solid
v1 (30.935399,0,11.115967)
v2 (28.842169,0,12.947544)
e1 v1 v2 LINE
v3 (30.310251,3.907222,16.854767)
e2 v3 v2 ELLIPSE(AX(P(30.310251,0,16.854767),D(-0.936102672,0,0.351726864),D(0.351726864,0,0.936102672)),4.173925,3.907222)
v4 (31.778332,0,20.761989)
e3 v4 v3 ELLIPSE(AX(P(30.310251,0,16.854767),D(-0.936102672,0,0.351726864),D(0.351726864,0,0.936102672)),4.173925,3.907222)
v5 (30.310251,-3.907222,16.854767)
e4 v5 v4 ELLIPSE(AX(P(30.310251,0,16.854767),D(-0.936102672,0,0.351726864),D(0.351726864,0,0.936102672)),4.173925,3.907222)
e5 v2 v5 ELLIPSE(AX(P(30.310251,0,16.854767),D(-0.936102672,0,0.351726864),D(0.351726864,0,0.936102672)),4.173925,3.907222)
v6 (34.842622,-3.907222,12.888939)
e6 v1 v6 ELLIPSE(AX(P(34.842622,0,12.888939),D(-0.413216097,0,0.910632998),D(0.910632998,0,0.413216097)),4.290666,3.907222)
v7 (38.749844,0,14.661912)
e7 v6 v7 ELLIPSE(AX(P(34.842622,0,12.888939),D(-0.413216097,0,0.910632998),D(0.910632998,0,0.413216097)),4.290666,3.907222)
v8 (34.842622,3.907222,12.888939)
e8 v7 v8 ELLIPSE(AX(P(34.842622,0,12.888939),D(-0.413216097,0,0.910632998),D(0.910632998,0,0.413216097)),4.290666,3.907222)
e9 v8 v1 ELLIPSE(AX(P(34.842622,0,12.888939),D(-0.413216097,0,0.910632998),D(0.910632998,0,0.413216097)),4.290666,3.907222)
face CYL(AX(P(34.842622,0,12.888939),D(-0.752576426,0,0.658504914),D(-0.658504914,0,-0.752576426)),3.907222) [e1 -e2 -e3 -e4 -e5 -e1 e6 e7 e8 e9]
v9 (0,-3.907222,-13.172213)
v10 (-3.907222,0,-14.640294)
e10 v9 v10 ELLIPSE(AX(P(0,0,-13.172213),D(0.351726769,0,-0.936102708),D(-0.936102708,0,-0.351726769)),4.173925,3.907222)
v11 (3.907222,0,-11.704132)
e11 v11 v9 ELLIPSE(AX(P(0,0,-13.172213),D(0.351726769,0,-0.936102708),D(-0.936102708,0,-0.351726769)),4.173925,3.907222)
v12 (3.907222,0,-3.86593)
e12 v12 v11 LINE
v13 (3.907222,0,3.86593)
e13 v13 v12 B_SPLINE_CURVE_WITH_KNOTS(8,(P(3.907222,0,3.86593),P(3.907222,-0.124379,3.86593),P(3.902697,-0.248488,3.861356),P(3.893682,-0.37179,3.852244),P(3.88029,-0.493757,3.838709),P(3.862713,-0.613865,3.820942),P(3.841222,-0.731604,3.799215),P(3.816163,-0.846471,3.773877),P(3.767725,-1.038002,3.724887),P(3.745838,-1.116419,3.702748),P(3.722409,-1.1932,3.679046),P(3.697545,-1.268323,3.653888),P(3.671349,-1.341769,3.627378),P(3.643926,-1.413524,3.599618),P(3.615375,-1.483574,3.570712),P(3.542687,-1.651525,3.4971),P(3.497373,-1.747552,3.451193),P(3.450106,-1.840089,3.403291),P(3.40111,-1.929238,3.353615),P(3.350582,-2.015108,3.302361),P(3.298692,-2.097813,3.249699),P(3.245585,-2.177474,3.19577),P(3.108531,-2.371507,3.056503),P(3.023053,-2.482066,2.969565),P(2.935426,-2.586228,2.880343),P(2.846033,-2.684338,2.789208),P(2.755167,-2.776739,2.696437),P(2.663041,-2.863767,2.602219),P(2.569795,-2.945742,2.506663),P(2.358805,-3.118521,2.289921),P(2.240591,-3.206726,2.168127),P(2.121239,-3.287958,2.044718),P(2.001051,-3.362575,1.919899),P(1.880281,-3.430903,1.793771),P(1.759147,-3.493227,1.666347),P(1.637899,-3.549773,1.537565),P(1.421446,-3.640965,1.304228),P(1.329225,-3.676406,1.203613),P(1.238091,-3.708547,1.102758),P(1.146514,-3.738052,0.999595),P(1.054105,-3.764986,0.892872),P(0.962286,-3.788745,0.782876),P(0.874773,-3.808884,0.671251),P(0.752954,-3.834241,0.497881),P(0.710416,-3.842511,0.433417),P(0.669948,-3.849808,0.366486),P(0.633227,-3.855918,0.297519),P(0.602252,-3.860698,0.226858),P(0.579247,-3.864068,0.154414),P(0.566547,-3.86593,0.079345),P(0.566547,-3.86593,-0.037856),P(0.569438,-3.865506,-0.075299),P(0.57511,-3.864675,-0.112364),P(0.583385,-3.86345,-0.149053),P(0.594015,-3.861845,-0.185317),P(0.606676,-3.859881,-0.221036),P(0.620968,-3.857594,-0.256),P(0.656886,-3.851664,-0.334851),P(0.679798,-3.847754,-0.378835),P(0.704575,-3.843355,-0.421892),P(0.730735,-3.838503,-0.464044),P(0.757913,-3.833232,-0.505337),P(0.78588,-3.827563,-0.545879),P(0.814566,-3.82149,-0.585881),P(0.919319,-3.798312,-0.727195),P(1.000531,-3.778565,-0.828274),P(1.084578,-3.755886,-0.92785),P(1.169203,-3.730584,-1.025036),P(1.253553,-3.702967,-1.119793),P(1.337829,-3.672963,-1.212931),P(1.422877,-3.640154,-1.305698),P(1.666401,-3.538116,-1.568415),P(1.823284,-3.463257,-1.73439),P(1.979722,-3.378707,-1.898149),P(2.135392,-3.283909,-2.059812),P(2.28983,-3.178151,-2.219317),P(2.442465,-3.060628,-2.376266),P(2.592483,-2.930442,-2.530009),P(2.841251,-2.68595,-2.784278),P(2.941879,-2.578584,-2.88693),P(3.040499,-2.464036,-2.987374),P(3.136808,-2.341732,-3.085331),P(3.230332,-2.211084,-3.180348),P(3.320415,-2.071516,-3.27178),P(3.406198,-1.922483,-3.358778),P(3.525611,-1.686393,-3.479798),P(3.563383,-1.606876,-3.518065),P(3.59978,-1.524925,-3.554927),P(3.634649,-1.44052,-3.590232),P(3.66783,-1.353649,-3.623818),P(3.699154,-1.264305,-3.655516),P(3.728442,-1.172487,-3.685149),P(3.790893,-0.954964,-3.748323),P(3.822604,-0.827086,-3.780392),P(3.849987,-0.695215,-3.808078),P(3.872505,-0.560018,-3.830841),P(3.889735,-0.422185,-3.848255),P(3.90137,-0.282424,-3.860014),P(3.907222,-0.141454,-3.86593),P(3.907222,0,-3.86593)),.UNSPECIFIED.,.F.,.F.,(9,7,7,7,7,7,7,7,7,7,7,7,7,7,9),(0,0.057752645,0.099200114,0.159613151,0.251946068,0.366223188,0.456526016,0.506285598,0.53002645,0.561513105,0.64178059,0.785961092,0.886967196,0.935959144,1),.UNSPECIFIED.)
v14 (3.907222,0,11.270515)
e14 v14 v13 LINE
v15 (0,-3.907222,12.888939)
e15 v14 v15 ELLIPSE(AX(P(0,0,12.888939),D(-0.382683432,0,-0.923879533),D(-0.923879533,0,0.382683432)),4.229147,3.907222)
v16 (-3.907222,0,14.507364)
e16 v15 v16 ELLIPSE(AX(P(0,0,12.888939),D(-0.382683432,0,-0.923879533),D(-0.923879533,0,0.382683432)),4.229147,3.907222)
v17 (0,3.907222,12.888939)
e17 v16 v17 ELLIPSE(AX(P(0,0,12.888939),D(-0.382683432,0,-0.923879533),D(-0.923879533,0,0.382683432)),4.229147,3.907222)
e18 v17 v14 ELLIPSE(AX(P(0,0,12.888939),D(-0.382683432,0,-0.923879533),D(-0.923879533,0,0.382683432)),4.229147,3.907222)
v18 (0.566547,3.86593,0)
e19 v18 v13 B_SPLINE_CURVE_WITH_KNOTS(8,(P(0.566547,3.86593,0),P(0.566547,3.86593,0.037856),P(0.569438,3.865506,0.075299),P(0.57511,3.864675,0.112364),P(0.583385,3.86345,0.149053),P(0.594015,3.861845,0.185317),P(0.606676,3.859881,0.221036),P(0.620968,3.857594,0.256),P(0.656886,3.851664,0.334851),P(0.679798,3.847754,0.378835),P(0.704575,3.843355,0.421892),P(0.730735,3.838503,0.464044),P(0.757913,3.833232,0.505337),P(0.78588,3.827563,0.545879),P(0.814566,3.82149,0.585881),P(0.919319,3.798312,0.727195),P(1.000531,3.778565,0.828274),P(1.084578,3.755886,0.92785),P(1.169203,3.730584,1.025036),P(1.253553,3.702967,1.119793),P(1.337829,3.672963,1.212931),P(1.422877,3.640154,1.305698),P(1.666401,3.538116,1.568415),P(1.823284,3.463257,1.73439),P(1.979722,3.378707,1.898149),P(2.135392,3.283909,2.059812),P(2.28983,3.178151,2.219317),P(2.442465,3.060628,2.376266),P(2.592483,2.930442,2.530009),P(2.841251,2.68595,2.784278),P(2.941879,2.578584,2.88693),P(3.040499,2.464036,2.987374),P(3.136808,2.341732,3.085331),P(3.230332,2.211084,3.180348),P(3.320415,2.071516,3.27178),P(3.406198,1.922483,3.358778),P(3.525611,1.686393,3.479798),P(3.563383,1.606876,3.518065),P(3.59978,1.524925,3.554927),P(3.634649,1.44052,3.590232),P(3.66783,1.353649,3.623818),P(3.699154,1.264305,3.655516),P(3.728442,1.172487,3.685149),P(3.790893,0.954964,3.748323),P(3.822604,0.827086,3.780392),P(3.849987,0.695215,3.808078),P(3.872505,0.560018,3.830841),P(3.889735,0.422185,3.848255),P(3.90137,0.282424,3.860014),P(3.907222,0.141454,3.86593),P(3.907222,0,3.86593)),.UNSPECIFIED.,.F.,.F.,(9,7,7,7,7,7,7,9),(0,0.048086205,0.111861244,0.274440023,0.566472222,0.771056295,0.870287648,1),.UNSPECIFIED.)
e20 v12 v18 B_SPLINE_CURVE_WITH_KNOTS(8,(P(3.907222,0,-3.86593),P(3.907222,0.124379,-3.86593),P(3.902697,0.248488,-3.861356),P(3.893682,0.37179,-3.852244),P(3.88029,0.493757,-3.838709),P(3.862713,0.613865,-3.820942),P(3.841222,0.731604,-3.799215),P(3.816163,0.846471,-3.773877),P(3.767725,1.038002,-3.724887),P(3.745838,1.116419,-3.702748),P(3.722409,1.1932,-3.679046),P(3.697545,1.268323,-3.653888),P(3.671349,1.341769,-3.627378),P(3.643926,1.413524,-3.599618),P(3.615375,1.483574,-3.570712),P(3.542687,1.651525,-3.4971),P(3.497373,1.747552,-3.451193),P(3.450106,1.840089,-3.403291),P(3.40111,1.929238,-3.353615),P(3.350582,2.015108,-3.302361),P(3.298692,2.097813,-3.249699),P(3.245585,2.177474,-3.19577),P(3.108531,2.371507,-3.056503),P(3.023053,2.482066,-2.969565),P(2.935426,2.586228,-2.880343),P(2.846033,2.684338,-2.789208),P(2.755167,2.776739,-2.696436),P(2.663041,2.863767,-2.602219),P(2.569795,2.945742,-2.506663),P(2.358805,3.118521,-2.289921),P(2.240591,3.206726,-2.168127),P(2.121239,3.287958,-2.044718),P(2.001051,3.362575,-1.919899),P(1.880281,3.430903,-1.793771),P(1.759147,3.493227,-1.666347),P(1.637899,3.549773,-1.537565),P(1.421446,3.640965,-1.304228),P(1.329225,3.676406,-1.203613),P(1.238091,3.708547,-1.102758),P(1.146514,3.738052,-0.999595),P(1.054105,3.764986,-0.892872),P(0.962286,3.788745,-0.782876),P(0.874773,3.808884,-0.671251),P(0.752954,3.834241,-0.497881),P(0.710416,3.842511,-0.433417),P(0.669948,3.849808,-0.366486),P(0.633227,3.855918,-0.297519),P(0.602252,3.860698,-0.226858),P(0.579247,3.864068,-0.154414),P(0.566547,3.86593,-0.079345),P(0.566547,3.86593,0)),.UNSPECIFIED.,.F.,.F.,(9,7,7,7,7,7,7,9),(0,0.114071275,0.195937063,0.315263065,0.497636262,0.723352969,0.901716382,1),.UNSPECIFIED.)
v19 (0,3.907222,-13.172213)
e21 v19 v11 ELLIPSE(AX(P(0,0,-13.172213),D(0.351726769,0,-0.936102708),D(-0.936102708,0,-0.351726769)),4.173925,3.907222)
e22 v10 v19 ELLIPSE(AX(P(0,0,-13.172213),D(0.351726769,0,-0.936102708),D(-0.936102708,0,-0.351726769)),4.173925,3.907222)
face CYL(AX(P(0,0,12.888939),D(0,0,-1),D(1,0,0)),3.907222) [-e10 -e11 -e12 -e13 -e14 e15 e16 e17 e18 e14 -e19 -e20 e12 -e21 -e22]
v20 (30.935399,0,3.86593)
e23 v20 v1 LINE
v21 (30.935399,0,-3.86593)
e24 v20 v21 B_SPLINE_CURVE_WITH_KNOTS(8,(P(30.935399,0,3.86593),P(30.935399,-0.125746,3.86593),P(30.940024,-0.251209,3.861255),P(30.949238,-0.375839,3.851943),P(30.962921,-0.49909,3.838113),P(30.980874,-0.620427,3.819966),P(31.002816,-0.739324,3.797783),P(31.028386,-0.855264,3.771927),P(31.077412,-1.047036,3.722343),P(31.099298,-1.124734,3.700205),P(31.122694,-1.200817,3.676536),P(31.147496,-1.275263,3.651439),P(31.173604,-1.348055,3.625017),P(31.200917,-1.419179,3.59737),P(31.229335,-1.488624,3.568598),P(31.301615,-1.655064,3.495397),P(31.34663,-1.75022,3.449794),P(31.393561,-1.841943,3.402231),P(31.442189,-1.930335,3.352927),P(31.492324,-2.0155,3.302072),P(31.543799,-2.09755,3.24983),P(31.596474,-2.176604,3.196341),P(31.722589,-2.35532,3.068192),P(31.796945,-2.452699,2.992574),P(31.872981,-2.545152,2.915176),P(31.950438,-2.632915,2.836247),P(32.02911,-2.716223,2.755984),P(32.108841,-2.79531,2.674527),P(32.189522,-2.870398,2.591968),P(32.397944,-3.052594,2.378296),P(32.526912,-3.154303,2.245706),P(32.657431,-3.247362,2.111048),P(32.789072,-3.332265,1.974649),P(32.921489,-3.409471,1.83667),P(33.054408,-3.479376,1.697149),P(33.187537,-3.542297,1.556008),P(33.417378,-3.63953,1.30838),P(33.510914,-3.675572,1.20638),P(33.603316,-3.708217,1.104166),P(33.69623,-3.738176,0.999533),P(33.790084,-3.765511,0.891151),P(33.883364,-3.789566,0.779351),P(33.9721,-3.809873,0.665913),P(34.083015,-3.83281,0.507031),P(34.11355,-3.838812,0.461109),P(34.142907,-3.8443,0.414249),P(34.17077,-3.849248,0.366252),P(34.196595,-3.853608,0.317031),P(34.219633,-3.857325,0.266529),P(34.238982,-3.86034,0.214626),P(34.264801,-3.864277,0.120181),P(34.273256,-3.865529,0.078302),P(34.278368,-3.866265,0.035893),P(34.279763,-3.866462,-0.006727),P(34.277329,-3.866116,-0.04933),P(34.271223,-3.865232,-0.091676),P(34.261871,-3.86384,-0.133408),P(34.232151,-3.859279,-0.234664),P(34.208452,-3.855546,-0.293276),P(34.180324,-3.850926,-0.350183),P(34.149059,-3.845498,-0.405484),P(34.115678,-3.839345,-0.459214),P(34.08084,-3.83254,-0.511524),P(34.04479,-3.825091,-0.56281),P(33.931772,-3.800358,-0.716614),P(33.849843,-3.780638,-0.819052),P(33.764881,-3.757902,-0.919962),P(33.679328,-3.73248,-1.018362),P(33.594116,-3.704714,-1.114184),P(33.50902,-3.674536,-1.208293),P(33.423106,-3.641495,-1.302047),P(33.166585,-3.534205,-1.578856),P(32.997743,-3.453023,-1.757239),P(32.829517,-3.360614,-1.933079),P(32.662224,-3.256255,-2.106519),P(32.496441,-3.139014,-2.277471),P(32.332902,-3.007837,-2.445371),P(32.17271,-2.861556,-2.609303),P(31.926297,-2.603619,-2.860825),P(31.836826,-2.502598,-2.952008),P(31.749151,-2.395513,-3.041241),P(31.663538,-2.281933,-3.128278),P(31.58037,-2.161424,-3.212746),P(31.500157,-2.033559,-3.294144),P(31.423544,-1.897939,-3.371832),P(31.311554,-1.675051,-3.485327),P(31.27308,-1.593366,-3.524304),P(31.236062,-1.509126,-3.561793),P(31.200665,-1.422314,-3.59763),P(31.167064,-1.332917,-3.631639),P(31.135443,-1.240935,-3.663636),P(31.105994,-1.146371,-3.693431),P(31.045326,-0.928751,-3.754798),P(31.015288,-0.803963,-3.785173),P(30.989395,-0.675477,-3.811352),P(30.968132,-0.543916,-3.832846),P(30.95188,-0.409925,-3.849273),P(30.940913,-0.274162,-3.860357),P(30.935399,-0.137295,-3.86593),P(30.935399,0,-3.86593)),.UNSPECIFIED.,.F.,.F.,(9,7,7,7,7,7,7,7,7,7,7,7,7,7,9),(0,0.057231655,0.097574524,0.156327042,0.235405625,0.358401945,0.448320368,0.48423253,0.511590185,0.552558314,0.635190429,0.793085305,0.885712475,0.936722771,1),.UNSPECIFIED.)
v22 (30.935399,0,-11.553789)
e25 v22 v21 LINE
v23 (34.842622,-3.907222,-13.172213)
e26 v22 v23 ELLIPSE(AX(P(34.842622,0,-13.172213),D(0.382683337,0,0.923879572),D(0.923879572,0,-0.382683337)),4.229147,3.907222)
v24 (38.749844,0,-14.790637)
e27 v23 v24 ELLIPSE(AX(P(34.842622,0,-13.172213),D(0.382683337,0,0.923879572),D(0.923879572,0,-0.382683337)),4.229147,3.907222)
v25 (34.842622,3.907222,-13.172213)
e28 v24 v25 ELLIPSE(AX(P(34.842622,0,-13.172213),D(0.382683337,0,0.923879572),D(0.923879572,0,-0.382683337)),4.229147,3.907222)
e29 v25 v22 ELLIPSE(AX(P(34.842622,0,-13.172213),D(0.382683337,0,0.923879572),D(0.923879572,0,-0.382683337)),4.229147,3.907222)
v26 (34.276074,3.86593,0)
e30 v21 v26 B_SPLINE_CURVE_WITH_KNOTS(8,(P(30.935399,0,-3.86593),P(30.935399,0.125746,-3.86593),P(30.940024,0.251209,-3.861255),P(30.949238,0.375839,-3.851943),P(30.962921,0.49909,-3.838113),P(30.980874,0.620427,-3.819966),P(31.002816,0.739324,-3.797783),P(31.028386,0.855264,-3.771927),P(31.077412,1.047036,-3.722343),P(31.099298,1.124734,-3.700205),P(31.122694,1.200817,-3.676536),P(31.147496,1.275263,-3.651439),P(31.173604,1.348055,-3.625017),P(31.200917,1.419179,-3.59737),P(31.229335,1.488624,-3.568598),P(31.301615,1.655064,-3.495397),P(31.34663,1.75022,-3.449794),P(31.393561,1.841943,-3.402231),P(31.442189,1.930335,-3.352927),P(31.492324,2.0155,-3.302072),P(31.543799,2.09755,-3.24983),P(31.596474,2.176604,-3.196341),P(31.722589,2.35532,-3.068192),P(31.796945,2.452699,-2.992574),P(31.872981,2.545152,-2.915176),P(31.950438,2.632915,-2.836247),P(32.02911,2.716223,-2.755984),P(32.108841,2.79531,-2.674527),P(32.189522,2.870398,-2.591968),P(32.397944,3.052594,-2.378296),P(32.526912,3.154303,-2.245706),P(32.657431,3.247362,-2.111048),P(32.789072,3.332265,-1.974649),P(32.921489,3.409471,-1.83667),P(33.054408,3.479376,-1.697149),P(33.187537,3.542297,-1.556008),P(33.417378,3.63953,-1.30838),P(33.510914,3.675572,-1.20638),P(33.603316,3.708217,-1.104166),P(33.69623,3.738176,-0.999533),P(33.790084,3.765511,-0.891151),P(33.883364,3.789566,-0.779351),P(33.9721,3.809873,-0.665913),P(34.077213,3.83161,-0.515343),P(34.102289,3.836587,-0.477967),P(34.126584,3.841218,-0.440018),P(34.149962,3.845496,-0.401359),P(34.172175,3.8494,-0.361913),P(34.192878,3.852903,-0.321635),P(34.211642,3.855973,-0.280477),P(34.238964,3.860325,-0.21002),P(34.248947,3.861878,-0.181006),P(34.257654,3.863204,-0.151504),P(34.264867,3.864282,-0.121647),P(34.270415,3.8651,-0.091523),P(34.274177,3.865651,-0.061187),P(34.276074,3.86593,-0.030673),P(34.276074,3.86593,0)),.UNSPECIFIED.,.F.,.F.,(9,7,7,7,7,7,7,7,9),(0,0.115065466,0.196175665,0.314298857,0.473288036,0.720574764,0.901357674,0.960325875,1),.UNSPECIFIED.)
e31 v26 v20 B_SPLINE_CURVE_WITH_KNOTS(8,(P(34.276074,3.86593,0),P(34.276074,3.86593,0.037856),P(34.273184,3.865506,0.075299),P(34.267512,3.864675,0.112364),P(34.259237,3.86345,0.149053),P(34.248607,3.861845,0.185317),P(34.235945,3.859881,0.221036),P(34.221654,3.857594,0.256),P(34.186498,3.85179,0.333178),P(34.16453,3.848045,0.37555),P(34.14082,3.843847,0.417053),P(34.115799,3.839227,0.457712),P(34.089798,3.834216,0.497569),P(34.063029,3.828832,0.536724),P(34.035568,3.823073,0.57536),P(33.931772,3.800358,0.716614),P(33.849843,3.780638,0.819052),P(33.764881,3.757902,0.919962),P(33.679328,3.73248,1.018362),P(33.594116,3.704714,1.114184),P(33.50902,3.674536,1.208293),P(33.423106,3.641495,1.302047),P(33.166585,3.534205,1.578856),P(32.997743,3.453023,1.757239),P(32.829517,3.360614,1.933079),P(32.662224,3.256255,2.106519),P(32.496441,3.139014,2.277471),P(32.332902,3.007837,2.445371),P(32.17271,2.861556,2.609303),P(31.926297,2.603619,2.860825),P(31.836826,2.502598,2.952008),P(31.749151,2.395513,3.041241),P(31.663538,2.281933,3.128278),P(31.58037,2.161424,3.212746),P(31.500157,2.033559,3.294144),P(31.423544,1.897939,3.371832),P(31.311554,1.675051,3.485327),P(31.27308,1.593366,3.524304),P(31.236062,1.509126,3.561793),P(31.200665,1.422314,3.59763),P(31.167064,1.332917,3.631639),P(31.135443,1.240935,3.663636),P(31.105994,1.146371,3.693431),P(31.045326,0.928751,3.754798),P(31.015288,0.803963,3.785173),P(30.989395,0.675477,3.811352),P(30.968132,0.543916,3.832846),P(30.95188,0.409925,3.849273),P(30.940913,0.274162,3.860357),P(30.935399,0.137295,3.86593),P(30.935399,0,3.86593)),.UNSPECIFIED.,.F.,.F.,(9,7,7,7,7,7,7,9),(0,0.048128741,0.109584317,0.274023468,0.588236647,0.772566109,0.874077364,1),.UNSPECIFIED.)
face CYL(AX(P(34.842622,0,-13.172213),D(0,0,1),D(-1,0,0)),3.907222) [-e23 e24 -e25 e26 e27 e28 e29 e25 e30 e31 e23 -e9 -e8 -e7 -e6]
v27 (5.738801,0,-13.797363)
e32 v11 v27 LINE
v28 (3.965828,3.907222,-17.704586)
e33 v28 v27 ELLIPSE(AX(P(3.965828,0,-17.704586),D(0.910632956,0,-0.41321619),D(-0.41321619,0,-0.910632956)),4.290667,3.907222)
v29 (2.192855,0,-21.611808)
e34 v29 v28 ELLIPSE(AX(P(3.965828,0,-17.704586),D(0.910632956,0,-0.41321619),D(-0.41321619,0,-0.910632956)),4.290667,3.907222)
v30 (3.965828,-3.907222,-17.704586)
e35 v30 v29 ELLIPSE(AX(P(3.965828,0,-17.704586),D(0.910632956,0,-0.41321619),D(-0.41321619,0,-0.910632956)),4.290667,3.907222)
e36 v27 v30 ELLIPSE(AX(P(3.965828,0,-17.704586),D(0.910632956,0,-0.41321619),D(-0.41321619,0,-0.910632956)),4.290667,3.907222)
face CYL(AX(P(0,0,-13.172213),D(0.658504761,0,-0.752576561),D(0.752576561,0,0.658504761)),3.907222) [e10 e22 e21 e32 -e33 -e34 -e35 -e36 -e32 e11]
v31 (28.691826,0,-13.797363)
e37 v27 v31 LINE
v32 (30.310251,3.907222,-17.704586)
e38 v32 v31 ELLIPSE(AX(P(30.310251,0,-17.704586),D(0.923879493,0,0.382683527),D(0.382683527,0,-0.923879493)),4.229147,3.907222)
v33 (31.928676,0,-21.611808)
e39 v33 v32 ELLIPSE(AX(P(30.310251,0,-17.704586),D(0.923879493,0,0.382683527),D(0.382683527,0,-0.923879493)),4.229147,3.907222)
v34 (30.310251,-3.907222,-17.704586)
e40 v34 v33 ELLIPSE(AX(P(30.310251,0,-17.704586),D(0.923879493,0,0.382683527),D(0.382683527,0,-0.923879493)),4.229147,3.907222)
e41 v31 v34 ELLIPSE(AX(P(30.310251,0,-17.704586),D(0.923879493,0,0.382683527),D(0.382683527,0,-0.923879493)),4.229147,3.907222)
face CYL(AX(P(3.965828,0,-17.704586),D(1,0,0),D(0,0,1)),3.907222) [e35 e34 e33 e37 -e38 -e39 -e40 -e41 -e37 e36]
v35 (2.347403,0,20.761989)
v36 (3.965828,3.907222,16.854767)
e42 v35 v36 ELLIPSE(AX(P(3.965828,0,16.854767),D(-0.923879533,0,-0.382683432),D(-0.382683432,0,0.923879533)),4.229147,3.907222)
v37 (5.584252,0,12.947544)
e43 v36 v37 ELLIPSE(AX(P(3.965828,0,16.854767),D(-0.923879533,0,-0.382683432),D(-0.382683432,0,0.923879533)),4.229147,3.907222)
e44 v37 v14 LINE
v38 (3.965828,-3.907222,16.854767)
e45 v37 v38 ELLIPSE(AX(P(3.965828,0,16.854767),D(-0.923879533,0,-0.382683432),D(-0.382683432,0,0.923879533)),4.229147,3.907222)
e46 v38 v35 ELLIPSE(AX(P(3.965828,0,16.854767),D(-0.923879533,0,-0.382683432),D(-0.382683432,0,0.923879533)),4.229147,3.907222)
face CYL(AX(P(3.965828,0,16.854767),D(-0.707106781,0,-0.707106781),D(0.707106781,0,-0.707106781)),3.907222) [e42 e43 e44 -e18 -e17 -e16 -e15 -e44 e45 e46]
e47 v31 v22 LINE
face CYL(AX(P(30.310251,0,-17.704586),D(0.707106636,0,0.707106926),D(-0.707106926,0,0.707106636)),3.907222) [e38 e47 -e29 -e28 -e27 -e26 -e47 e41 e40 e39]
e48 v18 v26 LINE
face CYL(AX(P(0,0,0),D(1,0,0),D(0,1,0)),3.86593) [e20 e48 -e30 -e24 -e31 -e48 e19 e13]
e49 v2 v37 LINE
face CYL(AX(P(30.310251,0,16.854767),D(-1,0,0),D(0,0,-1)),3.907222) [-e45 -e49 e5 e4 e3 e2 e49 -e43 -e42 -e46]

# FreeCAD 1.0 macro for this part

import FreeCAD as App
import Part
import Sketcher


def add_polygon(sketch, points):
    """Adds a closed chain of lines whose ends are joined by coincident constraints."""
    first, n = sketch.GeometryCount, len(points)
    for a, b in zip(points, points[1:] + points[:1]):
        sketch.addGeometry(Part.LineSegment(App.Vector(*a, 0), App.Vector(*b, 0)), False)
    for i in range(n):
        sketch.addConstraint(Sketcher.Constraint("Coincident", first + i, 2, first + (i + 1) % n, 1))

doc = App.newDocument("Part")
body = doc.addObject("PartDesign::Body", "Body")

# Sketch on XY plane
sketch1 = doc.addObject("Sketcher::SketchObject", "Sketch")
body.addObject(sketch1)
sketch1.AttachmentSupport = (doc.XY_Plane, [""])
sketch1.MapMode = "FlatFace"
sketch1.addGeometry(Part.Circle(App.Vector(0, 0, 0), App.Vector(0, 0, 1), 3.907222), False)
sketch1.addConstraint([
    Sketcher.Constraint("Coincident", 0, 3, -1, 1),
    Sketcher.Constraint("Diameter", 0, 7.814445),
])

# Sketch on XZ plane
sketch2 = doc.addObject("Sketcher::SketchObject", "Sketch001")
body.addObject(sketch2)
sketch2.AttachmentSupport = (doc.XZ_Plane, [""])
sketch2.MapMode = "FlatFace"
add_polygon(sketch2, [(0, 12.888939), (0, -13.172213), (3.965828, -17.704586), (30.310251, -17.704586), (34.842622, -13.172213), (34.842622, 12.888939), (30.310251, 16.854767), (3.965828, 16.854767)])  # lines 0-7
sketch2.addConstraint([
    Sketcher.Constraint("Vertical", 0),
    Sketcher.Constraint("Horizontal", 2),
    Sketcher.Constraint("Vertical", 4),
    Sketcher.Constraint("Horizontal", 6),
    Sketcher.Constraint("PointOnObject", 0, 2, -2),
    Sketcher.Constraint("Parallel", 3, 7),
    Sketcher.Constraint("Horizontal", 0, 2, 3, 2),
    Sketcher.Constraint("Horizontal", 4, 2, 7, 2),
    Sketcher.Constraint("Vertical", 2, 2, 5, 2),
    Sketcher.Constraint("Vertical", 1, 2, 6, 2),
    Sketcher.Constraint("Equal", 1, 5),
    Sketcher.Constraint("Distance", 3, 6.409741),
    Sketcher.Constraint("DistanceX", 2, 1, 2, 2, 26.344423),
    Sketcher.Constraint("DistanceY", 0, 2, 0, 1, 26.061152),
    Sketcher.Constraint("DistanceX", -1, 1, 2, 2, 30.310251),
    Sketcher.Constraint("DistanceY", -1, 1, 4, 2, 12.888939),
])
doc.recompute()

additivepipe = doc.addObject("PartDesign::AdditivePipe", "AdditivePipe")
body.addObject(additivepipe)
additivepipe.Profile = sketch1
additivepipe.Spine = (sketch2, ["Edge1", "Edge2", "Edge3", "Edge4", "Edge5", "Edge6", "Edge7", "Edge8"])
additivepipe.Transition = "Right corner"

# Sketch on YZ plane
sketch3 = doc.addObject("Sketcher::SketchObject", "Sketch002")
body.addObject(sketch3)
sketch3.AttachmentSupport = (doc.YZ_Plane, [""])
sketch3.MapMode = "FlatFace"
sketch3.addGeometry(Part.Circle(App.Vector(0, 0, 0), App.Vector(0, 0, 1), 3.86593), False)
sketch3.addConstraint([
    Sketcher.Constraint("Coincident", 0, 3, -1, 1),
    Sketcher.Constraint("Diameter", 0, 7.731859),
])

# Sketch on XY plane
sketch4 = doc.addObject("Sketcher::SketchObject", "Sketch003")
body.addObject(sketch4)
sketch4.AttachmentSupport = (doc.XY_Plane, [""])
sketch4.MapMode = "FlatFace"
sketch4.addGeometry(Part.LineSegment(App.Vector(0, 0, 0), App.Vector(35.1259, 0, 0)), False)
sketch4.addConstraint([
    Sketcher.Constraint("Horizontal", 0),
    Sketcher.Constraint("Coincident", 0, 1, -1, 1),
    Sketcher.Constraint("DistanceX", 0, 1, 0, 2, 35.1259),
])
doc.recompute()

additivepipe2 = doc.addObject("PartDesign::AdditivePipe", "AdditivePipe001")
body.addObject(additivepipe2)
additivepipe2.Profile = sketch3
additivepipe2.Spine = (sketch4, ["Edge1"])

doc.recompute()
